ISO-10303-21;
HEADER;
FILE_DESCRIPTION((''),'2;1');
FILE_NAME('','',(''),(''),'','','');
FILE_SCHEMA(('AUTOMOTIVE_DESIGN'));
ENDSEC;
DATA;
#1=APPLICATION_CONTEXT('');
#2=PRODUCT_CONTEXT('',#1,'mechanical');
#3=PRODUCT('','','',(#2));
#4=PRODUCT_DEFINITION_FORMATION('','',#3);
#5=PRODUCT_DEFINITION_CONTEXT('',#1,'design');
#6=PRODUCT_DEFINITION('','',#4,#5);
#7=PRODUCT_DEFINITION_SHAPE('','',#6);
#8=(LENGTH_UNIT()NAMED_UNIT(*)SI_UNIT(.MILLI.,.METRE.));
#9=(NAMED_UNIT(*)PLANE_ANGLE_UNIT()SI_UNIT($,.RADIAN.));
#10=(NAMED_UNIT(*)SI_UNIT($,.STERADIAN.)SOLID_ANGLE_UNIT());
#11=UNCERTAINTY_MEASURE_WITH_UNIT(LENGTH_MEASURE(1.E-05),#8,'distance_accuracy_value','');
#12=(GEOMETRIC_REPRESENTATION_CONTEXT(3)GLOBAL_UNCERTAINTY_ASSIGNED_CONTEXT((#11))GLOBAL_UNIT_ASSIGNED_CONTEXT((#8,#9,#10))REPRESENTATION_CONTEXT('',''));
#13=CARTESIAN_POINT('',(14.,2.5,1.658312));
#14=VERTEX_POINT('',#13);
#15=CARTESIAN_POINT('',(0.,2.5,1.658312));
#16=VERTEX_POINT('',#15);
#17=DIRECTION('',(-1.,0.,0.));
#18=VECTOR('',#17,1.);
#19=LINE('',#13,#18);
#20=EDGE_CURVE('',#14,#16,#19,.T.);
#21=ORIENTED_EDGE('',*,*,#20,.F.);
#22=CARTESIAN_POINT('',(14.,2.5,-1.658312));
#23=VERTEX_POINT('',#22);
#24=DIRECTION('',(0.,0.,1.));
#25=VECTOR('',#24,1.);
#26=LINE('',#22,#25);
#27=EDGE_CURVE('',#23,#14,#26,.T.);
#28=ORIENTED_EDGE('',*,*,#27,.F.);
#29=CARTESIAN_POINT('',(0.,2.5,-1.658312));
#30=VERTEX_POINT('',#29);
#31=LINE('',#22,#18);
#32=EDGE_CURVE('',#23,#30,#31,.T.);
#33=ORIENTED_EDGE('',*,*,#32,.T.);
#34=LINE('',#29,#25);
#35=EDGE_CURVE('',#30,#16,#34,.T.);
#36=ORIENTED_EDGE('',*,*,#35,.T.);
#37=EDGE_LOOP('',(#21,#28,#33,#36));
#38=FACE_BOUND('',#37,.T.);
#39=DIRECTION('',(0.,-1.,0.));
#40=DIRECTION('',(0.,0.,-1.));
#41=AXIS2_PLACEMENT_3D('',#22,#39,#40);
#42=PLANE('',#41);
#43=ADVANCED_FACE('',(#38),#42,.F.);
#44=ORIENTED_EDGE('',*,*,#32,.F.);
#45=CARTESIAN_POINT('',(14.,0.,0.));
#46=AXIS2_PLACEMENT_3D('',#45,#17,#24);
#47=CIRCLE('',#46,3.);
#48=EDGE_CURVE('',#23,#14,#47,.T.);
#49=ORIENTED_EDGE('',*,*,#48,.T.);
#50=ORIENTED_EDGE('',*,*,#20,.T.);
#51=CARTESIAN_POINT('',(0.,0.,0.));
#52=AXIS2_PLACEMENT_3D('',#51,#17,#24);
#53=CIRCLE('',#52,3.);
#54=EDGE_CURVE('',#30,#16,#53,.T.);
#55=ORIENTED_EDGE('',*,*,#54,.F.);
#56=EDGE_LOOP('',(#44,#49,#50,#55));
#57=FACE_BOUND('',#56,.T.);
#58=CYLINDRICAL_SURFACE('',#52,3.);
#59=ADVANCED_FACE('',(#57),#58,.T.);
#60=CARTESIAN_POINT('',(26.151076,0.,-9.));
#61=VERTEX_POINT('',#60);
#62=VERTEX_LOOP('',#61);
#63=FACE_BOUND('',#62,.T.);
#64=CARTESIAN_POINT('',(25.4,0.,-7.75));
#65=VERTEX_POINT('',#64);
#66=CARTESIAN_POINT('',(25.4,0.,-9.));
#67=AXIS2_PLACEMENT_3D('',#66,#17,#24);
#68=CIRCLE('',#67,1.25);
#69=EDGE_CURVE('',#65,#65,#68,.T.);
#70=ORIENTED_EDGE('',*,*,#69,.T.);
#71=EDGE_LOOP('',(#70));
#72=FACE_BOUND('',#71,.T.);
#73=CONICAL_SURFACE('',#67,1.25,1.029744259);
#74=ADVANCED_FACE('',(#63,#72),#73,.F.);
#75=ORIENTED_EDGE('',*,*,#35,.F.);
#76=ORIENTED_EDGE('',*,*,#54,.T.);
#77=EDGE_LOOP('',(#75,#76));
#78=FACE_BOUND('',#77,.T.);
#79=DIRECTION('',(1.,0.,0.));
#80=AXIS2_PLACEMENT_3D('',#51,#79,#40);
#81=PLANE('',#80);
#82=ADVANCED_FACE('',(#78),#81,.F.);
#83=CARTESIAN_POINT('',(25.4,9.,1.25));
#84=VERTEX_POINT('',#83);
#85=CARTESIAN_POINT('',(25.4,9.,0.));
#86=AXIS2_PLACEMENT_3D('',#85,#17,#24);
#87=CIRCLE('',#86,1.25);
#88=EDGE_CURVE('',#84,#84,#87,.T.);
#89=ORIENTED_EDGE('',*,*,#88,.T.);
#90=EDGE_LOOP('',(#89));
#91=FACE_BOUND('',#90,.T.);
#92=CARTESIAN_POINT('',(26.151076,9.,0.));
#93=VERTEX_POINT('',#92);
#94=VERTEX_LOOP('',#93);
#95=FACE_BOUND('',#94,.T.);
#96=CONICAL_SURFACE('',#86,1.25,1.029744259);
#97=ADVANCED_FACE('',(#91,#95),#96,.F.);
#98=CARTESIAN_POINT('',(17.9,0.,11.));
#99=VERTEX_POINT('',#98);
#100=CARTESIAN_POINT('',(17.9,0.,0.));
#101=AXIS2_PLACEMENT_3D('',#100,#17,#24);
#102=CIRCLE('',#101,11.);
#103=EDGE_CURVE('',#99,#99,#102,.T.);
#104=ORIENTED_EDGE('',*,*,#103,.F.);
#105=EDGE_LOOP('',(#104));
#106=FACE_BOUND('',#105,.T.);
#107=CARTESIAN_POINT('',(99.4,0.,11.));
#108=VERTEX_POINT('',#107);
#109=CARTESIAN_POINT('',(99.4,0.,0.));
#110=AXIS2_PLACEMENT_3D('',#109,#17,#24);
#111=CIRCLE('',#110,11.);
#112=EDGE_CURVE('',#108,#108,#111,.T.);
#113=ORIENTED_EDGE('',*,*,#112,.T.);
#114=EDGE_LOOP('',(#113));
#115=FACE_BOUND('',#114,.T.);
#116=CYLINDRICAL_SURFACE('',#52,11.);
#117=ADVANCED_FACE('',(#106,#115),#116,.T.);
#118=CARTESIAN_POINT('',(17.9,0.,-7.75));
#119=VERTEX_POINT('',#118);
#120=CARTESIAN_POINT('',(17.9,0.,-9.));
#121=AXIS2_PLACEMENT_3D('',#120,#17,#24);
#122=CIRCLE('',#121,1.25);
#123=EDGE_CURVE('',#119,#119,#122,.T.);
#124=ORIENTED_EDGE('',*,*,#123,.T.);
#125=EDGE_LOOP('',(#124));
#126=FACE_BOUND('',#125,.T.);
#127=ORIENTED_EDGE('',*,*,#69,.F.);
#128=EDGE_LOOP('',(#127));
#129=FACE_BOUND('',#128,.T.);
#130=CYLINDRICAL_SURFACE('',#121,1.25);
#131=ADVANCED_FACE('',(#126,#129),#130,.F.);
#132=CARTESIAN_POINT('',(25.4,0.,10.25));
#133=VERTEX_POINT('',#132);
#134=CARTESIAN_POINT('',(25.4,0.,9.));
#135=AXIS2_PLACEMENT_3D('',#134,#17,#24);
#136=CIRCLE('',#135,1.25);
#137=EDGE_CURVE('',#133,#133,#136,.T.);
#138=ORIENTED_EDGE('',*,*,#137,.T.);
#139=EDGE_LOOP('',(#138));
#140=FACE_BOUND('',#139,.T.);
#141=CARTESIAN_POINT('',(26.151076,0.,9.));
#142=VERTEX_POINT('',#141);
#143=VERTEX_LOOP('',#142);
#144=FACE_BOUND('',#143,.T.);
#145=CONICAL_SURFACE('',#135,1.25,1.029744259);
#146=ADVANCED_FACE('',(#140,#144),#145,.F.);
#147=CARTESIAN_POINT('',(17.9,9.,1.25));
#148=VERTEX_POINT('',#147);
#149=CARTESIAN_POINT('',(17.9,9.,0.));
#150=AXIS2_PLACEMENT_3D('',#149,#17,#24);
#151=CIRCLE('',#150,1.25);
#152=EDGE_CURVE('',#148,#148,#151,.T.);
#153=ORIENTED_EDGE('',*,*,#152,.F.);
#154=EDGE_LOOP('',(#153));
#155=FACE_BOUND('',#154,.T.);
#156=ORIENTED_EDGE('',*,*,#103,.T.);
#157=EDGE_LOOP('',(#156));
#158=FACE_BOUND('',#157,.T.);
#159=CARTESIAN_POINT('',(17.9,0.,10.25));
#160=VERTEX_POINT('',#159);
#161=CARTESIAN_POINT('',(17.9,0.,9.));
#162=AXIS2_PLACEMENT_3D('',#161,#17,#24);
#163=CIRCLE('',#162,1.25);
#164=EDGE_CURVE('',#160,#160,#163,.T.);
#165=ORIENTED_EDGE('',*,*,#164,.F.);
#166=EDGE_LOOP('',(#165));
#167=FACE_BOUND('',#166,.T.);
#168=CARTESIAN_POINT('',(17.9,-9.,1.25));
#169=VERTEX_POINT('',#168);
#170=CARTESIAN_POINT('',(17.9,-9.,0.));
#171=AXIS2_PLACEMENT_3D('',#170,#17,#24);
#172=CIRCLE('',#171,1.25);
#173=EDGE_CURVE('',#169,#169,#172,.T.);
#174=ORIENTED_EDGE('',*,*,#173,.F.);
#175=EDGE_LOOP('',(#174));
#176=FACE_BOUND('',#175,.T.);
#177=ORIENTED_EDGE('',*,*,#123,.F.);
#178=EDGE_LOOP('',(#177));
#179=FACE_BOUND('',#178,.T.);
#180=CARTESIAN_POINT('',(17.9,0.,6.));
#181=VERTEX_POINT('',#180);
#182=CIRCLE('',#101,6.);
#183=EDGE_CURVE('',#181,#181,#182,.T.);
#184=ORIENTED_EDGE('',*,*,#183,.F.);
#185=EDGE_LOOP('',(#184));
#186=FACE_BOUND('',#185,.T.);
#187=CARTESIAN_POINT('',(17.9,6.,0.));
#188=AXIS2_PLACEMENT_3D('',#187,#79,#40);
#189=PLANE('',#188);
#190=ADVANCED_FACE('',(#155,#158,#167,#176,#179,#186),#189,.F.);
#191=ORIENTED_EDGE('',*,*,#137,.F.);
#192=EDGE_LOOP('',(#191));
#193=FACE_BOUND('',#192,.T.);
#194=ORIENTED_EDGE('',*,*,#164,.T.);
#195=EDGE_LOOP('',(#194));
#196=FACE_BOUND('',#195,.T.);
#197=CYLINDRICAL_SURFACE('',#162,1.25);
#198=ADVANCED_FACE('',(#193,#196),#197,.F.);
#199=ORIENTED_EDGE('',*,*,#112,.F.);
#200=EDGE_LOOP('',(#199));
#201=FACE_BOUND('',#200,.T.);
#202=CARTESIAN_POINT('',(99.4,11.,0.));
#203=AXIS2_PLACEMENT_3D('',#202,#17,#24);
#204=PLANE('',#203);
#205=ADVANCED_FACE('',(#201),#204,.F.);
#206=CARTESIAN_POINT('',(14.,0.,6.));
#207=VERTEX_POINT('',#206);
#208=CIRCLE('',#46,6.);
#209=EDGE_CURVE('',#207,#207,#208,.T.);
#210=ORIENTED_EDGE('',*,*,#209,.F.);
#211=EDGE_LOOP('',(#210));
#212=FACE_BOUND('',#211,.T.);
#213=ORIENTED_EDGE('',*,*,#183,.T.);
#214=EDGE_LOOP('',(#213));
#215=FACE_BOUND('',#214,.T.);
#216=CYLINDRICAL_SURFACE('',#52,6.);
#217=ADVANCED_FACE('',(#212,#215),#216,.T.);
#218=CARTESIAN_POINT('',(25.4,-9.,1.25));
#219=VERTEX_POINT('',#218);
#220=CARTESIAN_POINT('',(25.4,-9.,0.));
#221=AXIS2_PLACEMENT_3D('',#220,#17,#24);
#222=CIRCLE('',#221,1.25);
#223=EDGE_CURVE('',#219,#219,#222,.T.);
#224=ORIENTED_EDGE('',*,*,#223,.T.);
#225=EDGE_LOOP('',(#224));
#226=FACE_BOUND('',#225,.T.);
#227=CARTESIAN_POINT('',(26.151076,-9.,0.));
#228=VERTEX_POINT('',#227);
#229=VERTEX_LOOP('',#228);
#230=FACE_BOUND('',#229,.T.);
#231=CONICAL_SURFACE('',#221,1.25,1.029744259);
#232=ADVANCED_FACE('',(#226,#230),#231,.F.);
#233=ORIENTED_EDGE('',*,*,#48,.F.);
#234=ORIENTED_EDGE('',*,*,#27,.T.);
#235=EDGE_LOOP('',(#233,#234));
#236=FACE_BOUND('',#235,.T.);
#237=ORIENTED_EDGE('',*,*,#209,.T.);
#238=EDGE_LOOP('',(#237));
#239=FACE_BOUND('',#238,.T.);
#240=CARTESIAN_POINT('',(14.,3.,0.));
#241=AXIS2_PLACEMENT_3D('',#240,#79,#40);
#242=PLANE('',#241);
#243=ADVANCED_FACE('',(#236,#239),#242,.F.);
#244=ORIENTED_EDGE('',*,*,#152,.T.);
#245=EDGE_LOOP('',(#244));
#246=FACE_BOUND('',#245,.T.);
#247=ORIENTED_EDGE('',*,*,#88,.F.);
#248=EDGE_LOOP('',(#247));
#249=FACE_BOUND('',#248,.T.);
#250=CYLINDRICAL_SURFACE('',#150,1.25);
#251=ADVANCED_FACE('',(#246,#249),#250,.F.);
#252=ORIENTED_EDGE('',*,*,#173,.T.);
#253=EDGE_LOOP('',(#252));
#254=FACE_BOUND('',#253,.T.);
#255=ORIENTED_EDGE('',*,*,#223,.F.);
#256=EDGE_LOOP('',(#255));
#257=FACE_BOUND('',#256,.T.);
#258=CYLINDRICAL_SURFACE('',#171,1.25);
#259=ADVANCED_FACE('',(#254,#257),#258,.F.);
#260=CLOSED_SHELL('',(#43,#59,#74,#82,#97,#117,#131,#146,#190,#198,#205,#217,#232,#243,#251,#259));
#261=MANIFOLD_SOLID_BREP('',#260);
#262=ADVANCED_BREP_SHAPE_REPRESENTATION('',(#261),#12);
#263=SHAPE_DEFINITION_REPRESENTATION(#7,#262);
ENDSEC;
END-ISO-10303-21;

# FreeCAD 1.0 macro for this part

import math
import FreeCAD as App
import Part
import Sketcher

V = App.Vector
Q = App.Units.Quantity


def add_polygon(sketch, points):
    """Adds a closed chain of lines whose ends are joined by coincident constraints."""
    first, n = sketch.GeometryCount, len(points)
    for a, b in zip(points, points[1:] + points[:1]):
        sketch.addGeometry(Part.LineSegment(App.Vector(*a, 0), App.Vector(*b, 0)), False)
    for i in range(n):
        sketch.addConstraint(Sketcher.Constraint("Coincident", first + i, 2, first + (i + 1) % n, 1))

doc = App.newDocument("Part")
body = doc.addObject("PartDesign::Body", "Body")

sketch1 = body.newObject("Sketcher::SketchObject", "Sketch")
sketch1.AttachmentSupport = (doc.getObject("XY_Plane"), [""])
sketch1.MapMode = "FlatFace"
add_polygon(sketch1, [(0, 3), (0, 0), (99.4, 0), (99.4, 11), (17.9, 11), (17.9, 6), (14, 6), (14, 3)])
sketch1.addConstraint(Sketcher.Constraint("Vertical", 0))
sketch1.addConstraint(Sketcher.Constraint("Horizontal", 1))
sketch1.addConstraint(Sketcher.Constraint("Vertical", 2))
sketch1.addConstraint(Sketcher.Constraint("Horizontal", 3))
sketch1.addConstraint(Sketcher.Constraint("Vertical", 4))
sketch1.addConstraint(Sketcher.Constraint("Horizontal", 5))
sketch1.addConstraint(Sketcher.Constraint("Vertical", 6))
sketch1.addConstraint(Sketcher.Constraint("Horizontal", 7))
sketch1.addConstraint(Sketcher.Constraint("Coincident", 0, 2, -1, 1))
sketch1.addConstraint(Sketcher.Constraint("Equal", 0, 6))
sketch1.addConstraint(Sketcher.Constraint("DistanceX", 7, 2, 7, 1, Q("14 mm")))
sketch1.addConstraint(Sketcher.Constraint("DistanceY", 0, 2, 0, 1, Q("3 mm")))
sketch1.addConstraint(Sketcher.Constraint("DistanceY", 2, 1, 2, 2, Q("11 mm")))
sketch1.addConstraint(Sketcher.Constraint("DistanceX", 1, 1, 1, 2, Q("99.4 mm")))
sketch1.addConstraint(Sketcher.Constraint("DistanceX", 3, 2, 3, 1, Q("81.5 mm")))
revolution = body.newObject("PartDesign::Revolution", "Revolution")
revolution.Profile = sketch1
revolution.ReferenceAxis = (sketch1, ["H_Axis"])
revolution.Angle = 360

sketch2 = body.newObject("Sketcher::SketchObject", "Sketch001")
sketch2.AttachmentSupport = (doc.getObject("YZ_Plane"), [""])
sketch2.MapMode = "FlatFace"
sketch2.AttachmentOffset = App.Placement(V(0, 0, 17.9), App.Rotation())
sketch2.addGeometry(Part.Circle(V(0, -9, 0), V(0, 0, 1), 1.25), False)
sketch2.addGeometry(Part.Circle(V(9, 0, 0), V(0, 0, 1), 1.25), False)
sketch2.addGeometry(Part.Circle(V(0, 9, 0), V(0, 0, 1), 1.25), False)
sketch2.addGeometry(Part.Circle(V(-9, 0, 0), V(0, 0, 1), 1.25), False)
sketch2.addConstraint(Sketcher.Constraint("Equal", 0, 1))
sketch2.addConstraint(Sketcher.Constraint("Equal", 1, 2))
sketch2.addConstraint(Sketcher.Constraint("Equal", 2, 3))
sketch2.addConstraint(Sketcher.Constraint("Symmetric", 0, 3, 2, 3, -1, 1))
sketch2.addConstraint(Sketcher.Constraint("Symmetric", 1, 3, 3, 3, -1, 1))
sketch2.addConstraint(Sketcher.Constraint("PointOnObject", 0, 3, -2))
sketch2.addConstraint(Sketcher.Constraint("PointOnObject", 1, 3, -1))
sketch2.addConstraint(Sketcher.Constraint("Diameter", 0, Q("2.5 mm")))
sketch2.addConstraint(Sketcher.Constraint("DistanceY", 0, 3, -1, 1, Q("9 mm")))
sketch2.addConstraint(Sketcher.Constraint("DistanceX", -1, 1, 1, 3, Q("9 mm")))
doc.recompute()
hole = body.newObject("PartDesign::Hole", "Hole")
hole.Profile = sketch2
hole.ThreadType = "None"
hole.Diameter = 2.5
hole.DepthType = "Dimension"
hole.Depth = 7.5
hole.DrillPoint = "Angled"
hole.DrillPointAngle = 118
hole.Reversed = True

sketch3 = body.newObject("Sketcher::SketchObject", "Sketch002")
sketch3.AttachmentSupport = (doc.getObject("YZ_Plane"), [""])
sketch3.MapMode = "FlatFace"
sketch3.AttachmentOffset = App.Placement(V(0, 0, 14), App.Rotation())
sketch3.addGeometry(Part.LineSegment(V(2.5, -1.658312, 0), V(2.5, 1.658312, 0)), False)
sketch3.addGeometry(Part.ArcOfCircle(Part.Circle(V(0, 0, 0), V(0, 0, 1), 3), math.radians(-33.55731), math.radians(33.55731)), False)
sketch3.addConstraint(Sketcher.Constraint("Coincident", 0, 1, 1, 1))
sketch3.addConstraint(Sketcher.Constraint("Coincident", 1, 2, 0, 2))
sketch3.addConstraint(Sketcher.Constraint("Vertical", 0))
sketch3.addConstraint(Sketcher.Constraint("Coincident", 1, 3, -1, 1))
sketch3.addConstraint(Sketcher.Constraint("Radius", 1, Q("3 mm")))
sketch3.addConstraint(Sketcher.Constraint("DistanceX", -1, 1, 0, 1, Q("2.5 mm")))
pocket1 = body.newObject("PartDesign::Pocket", "Pocket")
pocket1.Profile = sketch3
pocket1.Length = 14

doc.recompute()
